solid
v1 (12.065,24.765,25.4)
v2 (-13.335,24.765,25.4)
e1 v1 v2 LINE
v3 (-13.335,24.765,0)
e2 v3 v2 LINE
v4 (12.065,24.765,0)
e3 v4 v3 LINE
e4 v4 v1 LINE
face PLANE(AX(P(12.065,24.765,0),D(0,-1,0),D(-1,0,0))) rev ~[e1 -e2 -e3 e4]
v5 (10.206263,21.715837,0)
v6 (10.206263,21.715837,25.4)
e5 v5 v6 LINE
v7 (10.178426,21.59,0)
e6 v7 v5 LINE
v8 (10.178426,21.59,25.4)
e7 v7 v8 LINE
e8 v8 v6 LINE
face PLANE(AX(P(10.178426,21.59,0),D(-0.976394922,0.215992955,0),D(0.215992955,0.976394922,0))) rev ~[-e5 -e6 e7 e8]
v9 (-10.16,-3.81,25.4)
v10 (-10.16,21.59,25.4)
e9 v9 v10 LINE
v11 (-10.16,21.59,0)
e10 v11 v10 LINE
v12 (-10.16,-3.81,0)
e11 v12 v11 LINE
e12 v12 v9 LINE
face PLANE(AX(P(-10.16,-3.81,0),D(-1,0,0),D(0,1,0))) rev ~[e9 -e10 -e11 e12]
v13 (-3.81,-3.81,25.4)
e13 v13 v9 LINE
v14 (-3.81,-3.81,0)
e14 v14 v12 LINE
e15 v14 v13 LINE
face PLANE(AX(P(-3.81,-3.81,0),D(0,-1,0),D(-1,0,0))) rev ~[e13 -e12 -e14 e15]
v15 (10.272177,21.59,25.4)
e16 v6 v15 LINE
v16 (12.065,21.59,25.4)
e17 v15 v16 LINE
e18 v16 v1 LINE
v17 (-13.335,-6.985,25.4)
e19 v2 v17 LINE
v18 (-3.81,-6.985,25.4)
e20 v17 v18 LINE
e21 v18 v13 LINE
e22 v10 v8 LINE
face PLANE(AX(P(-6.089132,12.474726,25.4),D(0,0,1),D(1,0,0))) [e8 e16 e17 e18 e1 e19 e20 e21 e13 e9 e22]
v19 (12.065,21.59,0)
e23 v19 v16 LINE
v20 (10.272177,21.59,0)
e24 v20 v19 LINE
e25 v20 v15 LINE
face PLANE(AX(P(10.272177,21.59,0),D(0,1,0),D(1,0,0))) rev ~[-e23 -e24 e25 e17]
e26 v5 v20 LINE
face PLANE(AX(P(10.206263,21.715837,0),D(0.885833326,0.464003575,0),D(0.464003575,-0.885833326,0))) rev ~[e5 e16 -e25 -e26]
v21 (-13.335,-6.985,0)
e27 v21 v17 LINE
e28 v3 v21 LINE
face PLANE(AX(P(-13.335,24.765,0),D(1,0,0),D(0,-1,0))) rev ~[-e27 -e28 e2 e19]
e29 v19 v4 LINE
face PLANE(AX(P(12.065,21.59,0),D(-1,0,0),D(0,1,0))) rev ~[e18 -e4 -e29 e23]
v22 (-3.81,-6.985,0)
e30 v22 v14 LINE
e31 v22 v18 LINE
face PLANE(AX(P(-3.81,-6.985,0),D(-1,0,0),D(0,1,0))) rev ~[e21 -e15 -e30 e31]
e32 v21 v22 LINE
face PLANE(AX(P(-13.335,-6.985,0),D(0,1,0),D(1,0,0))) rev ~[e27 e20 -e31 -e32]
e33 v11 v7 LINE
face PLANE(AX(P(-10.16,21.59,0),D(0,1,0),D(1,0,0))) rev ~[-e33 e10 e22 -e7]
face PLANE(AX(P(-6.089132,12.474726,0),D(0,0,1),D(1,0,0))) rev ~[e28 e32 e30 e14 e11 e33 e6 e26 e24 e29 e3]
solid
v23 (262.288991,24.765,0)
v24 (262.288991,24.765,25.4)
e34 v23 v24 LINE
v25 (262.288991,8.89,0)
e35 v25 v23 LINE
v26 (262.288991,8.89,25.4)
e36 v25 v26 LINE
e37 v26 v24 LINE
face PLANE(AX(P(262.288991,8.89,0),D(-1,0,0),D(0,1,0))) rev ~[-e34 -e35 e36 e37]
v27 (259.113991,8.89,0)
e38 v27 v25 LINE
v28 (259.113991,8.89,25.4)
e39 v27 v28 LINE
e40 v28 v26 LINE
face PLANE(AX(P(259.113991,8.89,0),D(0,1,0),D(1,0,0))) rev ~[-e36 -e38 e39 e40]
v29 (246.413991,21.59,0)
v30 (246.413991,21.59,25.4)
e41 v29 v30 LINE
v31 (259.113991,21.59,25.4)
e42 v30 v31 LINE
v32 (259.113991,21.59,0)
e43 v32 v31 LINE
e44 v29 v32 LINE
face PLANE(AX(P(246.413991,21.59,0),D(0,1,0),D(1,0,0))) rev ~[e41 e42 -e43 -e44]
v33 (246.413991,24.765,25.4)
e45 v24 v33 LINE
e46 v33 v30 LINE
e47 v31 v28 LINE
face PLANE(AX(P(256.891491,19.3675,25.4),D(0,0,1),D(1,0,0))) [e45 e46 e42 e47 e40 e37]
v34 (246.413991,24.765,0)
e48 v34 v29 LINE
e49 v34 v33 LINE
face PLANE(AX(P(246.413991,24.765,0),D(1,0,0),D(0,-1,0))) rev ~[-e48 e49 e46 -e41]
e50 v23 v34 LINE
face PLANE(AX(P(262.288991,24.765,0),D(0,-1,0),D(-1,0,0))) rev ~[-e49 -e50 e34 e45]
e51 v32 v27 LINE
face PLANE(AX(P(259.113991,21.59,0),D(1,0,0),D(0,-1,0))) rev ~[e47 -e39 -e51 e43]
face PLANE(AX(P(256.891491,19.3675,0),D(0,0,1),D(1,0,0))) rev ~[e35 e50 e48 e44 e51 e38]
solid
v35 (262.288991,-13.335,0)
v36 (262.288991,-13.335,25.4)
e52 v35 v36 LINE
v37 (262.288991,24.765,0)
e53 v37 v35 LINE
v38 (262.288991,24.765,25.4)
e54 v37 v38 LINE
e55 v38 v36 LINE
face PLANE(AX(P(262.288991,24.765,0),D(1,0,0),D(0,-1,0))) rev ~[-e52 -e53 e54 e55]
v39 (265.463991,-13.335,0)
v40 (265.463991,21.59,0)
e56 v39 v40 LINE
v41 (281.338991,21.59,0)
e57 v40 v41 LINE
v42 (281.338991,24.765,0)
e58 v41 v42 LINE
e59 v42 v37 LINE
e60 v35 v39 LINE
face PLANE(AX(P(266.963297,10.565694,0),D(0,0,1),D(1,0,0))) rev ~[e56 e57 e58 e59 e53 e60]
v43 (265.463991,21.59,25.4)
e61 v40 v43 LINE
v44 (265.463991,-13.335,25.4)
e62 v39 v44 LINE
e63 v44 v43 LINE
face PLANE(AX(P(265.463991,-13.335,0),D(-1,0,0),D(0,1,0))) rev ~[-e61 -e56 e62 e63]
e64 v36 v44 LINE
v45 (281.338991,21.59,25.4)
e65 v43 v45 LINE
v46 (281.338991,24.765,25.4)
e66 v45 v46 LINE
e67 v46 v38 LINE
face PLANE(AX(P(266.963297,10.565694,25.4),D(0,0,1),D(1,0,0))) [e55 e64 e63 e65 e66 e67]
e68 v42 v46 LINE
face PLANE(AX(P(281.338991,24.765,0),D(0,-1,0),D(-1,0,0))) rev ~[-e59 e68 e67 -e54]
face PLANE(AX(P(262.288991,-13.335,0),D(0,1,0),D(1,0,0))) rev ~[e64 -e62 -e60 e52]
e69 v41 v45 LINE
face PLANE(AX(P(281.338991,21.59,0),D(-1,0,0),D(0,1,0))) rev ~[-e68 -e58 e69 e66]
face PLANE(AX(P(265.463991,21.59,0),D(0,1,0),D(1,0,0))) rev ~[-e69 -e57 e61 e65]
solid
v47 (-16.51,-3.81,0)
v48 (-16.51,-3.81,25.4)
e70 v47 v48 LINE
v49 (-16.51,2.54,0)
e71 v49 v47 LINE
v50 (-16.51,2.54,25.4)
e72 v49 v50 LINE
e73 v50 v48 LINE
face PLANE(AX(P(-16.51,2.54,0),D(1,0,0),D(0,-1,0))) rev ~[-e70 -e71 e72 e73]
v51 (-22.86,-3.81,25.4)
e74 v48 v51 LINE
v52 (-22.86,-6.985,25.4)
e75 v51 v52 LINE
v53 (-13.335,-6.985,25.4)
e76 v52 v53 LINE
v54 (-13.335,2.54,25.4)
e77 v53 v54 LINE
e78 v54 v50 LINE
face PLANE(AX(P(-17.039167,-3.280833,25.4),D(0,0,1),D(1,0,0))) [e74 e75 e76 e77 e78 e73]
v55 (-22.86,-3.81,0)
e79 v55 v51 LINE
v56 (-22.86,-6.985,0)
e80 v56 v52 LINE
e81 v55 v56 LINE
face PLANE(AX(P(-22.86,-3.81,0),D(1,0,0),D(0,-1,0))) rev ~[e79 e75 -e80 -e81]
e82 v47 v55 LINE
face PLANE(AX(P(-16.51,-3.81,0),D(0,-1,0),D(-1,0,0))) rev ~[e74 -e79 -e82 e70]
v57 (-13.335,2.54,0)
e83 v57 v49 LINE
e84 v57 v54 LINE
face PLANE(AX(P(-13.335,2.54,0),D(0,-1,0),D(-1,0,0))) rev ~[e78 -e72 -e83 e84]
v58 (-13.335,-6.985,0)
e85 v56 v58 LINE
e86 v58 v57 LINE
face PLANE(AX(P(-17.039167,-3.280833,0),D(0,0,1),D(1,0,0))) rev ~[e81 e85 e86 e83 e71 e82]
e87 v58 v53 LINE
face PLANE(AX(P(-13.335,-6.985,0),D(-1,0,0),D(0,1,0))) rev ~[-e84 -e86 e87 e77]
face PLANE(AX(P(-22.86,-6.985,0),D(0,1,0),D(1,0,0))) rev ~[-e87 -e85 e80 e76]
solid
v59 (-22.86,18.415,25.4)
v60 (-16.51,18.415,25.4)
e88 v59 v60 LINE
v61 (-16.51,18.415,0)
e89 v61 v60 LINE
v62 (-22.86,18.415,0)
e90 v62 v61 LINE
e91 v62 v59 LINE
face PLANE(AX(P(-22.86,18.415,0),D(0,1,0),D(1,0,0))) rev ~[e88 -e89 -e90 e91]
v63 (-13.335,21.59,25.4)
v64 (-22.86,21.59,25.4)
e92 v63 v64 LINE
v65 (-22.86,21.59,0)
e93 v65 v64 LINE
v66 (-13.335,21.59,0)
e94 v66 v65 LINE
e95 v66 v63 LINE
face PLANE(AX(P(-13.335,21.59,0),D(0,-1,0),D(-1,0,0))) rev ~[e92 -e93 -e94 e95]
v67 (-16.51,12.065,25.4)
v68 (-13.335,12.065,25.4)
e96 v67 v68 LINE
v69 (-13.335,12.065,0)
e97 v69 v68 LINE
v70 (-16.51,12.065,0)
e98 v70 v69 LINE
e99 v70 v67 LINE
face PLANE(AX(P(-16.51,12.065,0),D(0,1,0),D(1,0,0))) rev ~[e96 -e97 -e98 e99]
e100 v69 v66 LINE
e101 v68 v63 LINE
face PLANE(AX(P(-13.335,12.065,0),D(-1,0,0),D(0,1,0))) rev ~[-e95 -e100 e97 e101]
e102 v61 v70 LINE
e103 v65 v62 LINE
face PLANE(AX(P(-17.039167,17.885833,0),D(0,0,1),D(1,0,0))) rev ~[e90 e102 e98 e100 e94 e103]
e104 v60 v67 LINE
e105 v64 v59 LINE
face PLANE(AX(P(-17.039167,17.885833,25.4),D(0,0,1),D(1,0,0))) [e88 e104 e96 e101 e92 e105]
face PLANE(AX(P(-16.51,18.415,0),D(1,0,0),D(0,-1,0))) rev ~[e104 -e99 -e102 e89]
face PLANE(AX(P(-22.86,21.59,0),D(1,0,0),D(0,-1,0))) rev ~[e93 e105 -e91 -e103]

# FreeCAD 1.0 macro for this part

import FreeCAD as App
import Part
import Sketcher

V = App.Vector
Q = App.Units.Quantity

doc = App.newDocument("Part")
params = doc.addObject("Spreadsheet::Sheet", "Params")
for row, (alias, value) in enumerate([
    ("sketch1_width", "1 in"),
    ("sketch1_width2", "0.25 in"),
    ("sketch1_height", "1.25 in"),
    ("sketch1_width3", "0.375 in"),
    ("pad1_length", "1 in"),
    ("sketch2_width", "0.25 in"),
    ("sketch2_width2", "0.375 in"),
    ("pad2_length", "1 in"),
    ("sketch3_height", "1.5 in"),
    ("sketch3_width", "0.75 in"),
    ("sketch3_width2", "0.125 in"),
    ("pad3_length", "1 in"),
    ("sketch4_width", "0.5 in"),
    ("sketch4_width2", "0.125 in"),
    ("pad4_length", "1 in"),
], start=1):
    params.set(f"A{row}", alias)
    params.set(f"B{row}", "=" + value)
    params.setAlias(f"B{row}", alias)

body = doc.addObject("PartDesign::Body", "Body")

sketch1 = body.newObject("Sketcher::SketchObject", "Sketch")
sketch1.AttachmentSupport = (doc.getObject("XY_Plane"), [""])
sketch1.MapMode = "FlatFace"
sketch1.addGeometry([
    Part.LineSegment(V(-10.16, 21.59, 0), V(10.18, 21.59, 0)),
    Part.LineSegment(V(10.18, 21.59, 0), V(10.21, 21.72, 0)),
    Part.LineSegment(V(10.21, 21.72, 0), V(10.27, 21.59, 0)),
    Part.LineSegment(V(10.27, 21.59, 0), V(12.06, 21.59, 0)),
    Part.LineSegment(V(12.06, 21.59, 0), V(12.06, 24.77, 0)),
    Part.LineSegment(V(12.06, 24.77, 0), V(-13.34, 24.77, 0)),
    Part.LineSegment(V(-13.34, 24.77, 0), V(-13.34, -6.99, 0)),
    Part.LineSegment(V(-13.34, -6.99, 0), V(-3.81, -6.99, 0)),
    Part.LineSegment(V(-3.81, -6.99, 0), V(-3.81, -3.81, 0)),
    Part.LineSegment(V(-3.81, -3.81, 0), V(-10.16, -3.81, 0)),
    Part.LineSegment(V(-10.16, -3.81, 0), V(-10.16, 21.59, 0)),
], False)
sketch1.addConstraint([
    Sketcher.Constraint("Coincident", 0, 2, 1, 1),
    Sketcher.Constraint("Coincident", 1, 2, 2, 1),
    Sketcher.Constraint("Coincident", 2, 2, 3, 1),
    Sketcher.Constraint("Coincident", 3, 2, 4, 1),
    Sketcher.Constraint("Coincident", 4, 2, 5, 1),
    Sketcher.Constraint("Coincident", 5, 2, 6, 1),
    Sketcher.Constraint("Coincident", 6, 2, 7, 1),
    Sketcher.Constraint("Coincident", 7, 2, 8, 1),
    Sketcher.Constraint("Coincident", 8, 2, 9, 1),
    Sketcher.Constraint("Coincident", 9, 2, 10, 1),
    Sketcher.Constraint("Coincident", 10, 2, 0, 1),
    Sketcher.Constraint("Horizontal", 0),
    Sketcher.Constraint("Horizontal", 3),
    Sketcher.Constraint("Vertical", 4),
    Sketcher.Constraint("Horizontal", 5),
    Sketcher.Constraint("Vertical", 6),
    Sketcher.Constraint("Horizontal", 7),
    Sketcher.Constraint("Vertical", 8),
    Sketcher.Constraint("Horizontal", 9),
    Sketcher.Constraint("Vertical", 10),
    Sketcher.Constraint("Horizontal", 0, 2, 2, 2),
    Sketcher.Constraint("Equal", 4, 8),
    Sketcher.Constraint("Equal", 5, 10),
    Sketcher.Constraint("DistanceX", 5, 2, 5, 1, Q("1 in")),
    Sketcher.Constraint("DistanceX", 9, 2, 9, 1, Q("0.25 in")),
    Sketcher.Constraint("DistanceY", 6, 2, 6, 1, Q("1.25 in")),
    Sketcher.Constraint("DistanceX", 9, 2, -1, 1, Q("0.4 in")),
    Sketcher.Constraint("DistanceX", 7, 1, 7, 2, Q("0.375 in")),
    Sketcher.Constraint("DistanceY", -1, 1, 0, 2, Q("0.85 in")),
    Sketcher.Constraint("Distance", 1, 0.128879),
    Sketcher.Constraint("DistanceX", 0, 1, 0, 2, 20.338426),
    Sketcher.Constraint("DistanceX", 3, 1, 3, 2, 1.792823),
    Sketcher.Constraint("Distance", 2, 0.142055),
])
sketch1.setExpression("Constraints[23]", "Params.sketch1_width")
sketch1.setExpression("Constraints[24]", "Params.sketch1_width2")
sketch1.setExpression("Constraints[25]", "Params.sketch1_height")
sketch1.setExpression("Constraints[27]", "Params.sketch1_width3")
pad1 = body.newObject("PartDesign::Pad", "Pad")
pad1.Profile = sketch1
pad1.setExpression("Length", "Params.pad1_length")
body2 = doc.addObject("PartDesign::Body", "Body001")
body2.AllowCompound = True

sketch2 = body2.newObject("Sketcher::SketchObject", "Sketch001")
sketch2.AttachmentSupport = (doc.getObject("XY_Plane001"), [""])
sketch2.MapMode = "FlatFace"
sketch2.addGeometry([
    Part.LineSegment(V(-13.3, 21.6, 0), V(-22.9, 21.6, 0)),
    Part.LineSegment(V(-22.9, 21.6, 0), V(-22.9, 18.4, 0)),
    Part.LineSegment(V(-22.9, 18.4, 0), V(-16.5, 18.4, 0)),
    Part.LineSegment(V(-16.5, 18.4, 0), V(-16.5, 12.1, 0)),
    Part.LineSegment(V(-16.5, 12.1, 0), V(-13.3, 12.1, 0)),
    Part.LineSegment(V(-13.3, 12.1, 0), V(-13.3, 21.6, 0)),
    Part.LineSegment(V(-22.9, -7, 0), V(-13.3, -7, 0)),
    Part.LineSegment(V(-13.3, -7, 0), V(-13.3, 2.5, 0)),
    Part.LineSegment(V(-13.3, 2.5, 0), V(-16.5, 2.5, 0)),
    Part.LineSegment(V(-16.5, 2.5, 0), V(-16.5, -3.8, 0)),
    Part.LineSegment(V(-16.5, -3.8, 0), V(-22.9, -3.8, 0)),
    Part.LineSegment(V(-22.9, -3.8, 0), V(-22.9, -7, 0)),
], False)
sketch2.addConstraint([
    Sketcher.Constraint("Coincident", 0, 2, 1, 1),
    Sketcher.Constraint("Coincident", 1, 2, 2, 1),
    Sketcher.Constraint("Coincident", 2, 2, 3, 1),
    Sketcher.Constraint("Coincident", 3, 2, 4, 1),
    Sketcher.Constraint("Coincident", 4, 2, 5, 1),
    Sketcher.Constraint("Coincident", 5, 2, 0, 1),
    Sketcher.Constraint("Coincident", 6, 2, 7, 1),
    Sketcher.Constraint("Coincident", 7, 2, 8, 1),
    Sketcher.Constraint("Coincident", 8, 2, 9, 1),
    Sketcher.Constraint("Coincident", 9, 2, 10, 1),
    Sketcher.Constraint("Coincident", 10, 2, 11, 1),
    Sketcher.Constraint("Coincident", 11, 2, 6, 1),
    Sketcher.Constraint("Horizontal", 0),
    Sketcher.Constraint("Vertical", 1),
    Sketcher.Constraint("Horizontal", 2),
    Sketcher.Constraint("Vertical", 3),
    Sketcher.Constraint("Horizontal", 4),
    Sketcher.Constraint("Vertical", 5),
    Sketcher.Constraint("Horizontal", 6),
    Sketcher.Constraint("Vertical", 7),
    Sketcher.Constraint("Horizontal", 8),
    Sketcher.Constraint("Vertical", 9),
    Sketcher.Constraint("Horizontal", 10),
    Sketcher.Constraint("Vertical", 11),
    Sketcher.Constraint("Vertical", 5, 2, 6, 2),
    Sketcher.Constraint("Vertical", 3, 2, 8, 2),
    Sketcher.Constraint("Vertical", 1, 2, 10, 2),
    Sketcher.Constraint("Equal", 8, 1),
    Sketcher.Constraint("Equal", 10, 3),
    Sketcher.Constraint("Equal", 5, 7),
    Sketcher.Constraint("Equal", 3, 9),
    Sketcher.Constraint("DistanceY", 6, 2, 2, 2, Q("1 in")),
    Sketcher.Constraint("DistanceX", 2, 1, 2, 2, Q("0.25 in")),
    Sketcher.Constraint("DistanceX", 0, 2, -1, 1, Q("0.9 in")),
    Sketcher.Constraint("DistanceY", -1, 1, 7, 2, Q("0.1 in")),
    Sketcher.Constraint("DistanceX", 0, 2, 0, 1, Q("0.375 in")),
])
sketch2.setExpression("Constraints[32]", "Params.sketch2_width")
sketch2.setExpression("Constraints[35]", "Params.sketch2_width2")
pad2 = body2.newObject("PartDesign::Pad", "Pad001")
pad2.Profile = sketch2
pad2.setExpression("Length", "Params.pad2_length")
body3 = doc.addObject("PartDesign::Body", "Body002")

sketch3 = body3.newObject("Sketcher::SketchObject", "Sketch002")
sketch3.AttachmentSupport = (doc.getObject("XY_Plane002"), [""])
sketch3.MapMode = "FlatFace"
sketch3.addGeometry([
    Part.LineSegment(V(281.3, 24.8, 0), V(262.3, 24.8, 0)),
    Part.LineSegment(V(262.3, 24.8, 0), V(262.3, -13.3, 0)),
    Part.LineSegment(V(262.3, -13.3, 0), V(265.5, -13.3, 0)),
    Part.LineSegment(V(265.5, -13.3, 0), V(265.5, 21.6, 0)),
    Part.LineSegment(V(265.5, 21.6, 0), V(281.3, 21.6, 0)),
    Part.LineSegment(V(281.3, 21.6, 0), V(281.3, 24.8, 0)),
], False)
sketch3.addConstraint([
    Sketcher.Constraint("Coincident", 0, 2, 1, 1),
    Sketcher.Constraint("Coincident", 1, 2, 2, 1),
    Sketcher.Constraint("Coincident", 2, 2, 3, 1),
    Sketcher.Constraint("Coincident", 3, 2, 4, 1),
    Sketcher.Constraint("Coincident", 4, 2, 5, 1),
    Sketcher.Constraint("Coincident", 5, 2, 0, 1),
    Sketcher.Constraint("Horizontal", 0),
    Sketcher.Constraint("Vertical", 1),
    Sketcher.Constraint("Horizontal", 2),
    Sketcher.Constraint("Vertical", 3),
    Sketcher.Constraint("Horizontal", 4),
    Sketcher.Constraint("Vertical", 5),
    Sketcher.Constraint("Equal", 2, 5),
    Sketcher.Constraint("DistanceY", 1, 2, 1, 1, Q("1.5 in")),
    Sketcher.Constraint("DistanceX", 0, 2, 0, 1, Q("0.75 in")),
    Sketcher.Constraint("DistanceX", 2, 1, 2, 2, Q("0.125 in")),
    Sketcher.Constraint("DistanceY", -1, 1, 3, 2, Q("0.85 in")),
    Sketcher.Constraint("DistanceX", -1, 1, 0, 2, 262.288991),
])
sketch3.setExpression("Constraints[13]", "Params.sketch3_height")
sketch3.setExpression("Constraints[14]", "Params.sketch3_width")
sketch3.setExpression("Constraints[15]", "Params.sketch3_width2")
pad3 = body3.newObject("PartDesign::Pad", "Pad002")
pad3.Profile = sketch3
pad3.setExpression("Length", "Params.pad3_length")
body4 = doc.addObject("PartDesign::Body", "Body003")

sketch4 = body4.newObject("Sketcher::SketchObject", "Sketch003")
sketch4.AttachmentSupport = (doc.getObject("XY_Plane003"), [""])
sketch4.MapMode = "FlatFace"
sketch4.addGeometry([
    Part.LineSegment(V(246.4, 21.6, 0), V(259.1, 21.6, 0)),
    Part.LineSegment(V(259.1, 21.6, 0), V(259.1, 8.9, 0)),
    Part.LineSegment(V(259.1, 8.9, 0), V(262.3, 8.9, 0)),
    Part.LineSegment(V(262.3, 8.9, 0), V(262.3, 24.8, 0)),
    Part.LineSegment(V(262.3, 24.8, 0), V(246.4, 24.8, 0)),
    Part.LineSegment(V(246.4, 24.8, 0), V(246.4, 21.6, 0)),
], False)
sketch4.addConstraint([
    Sketcher.Constraint("Coincident", 0, 2, 1, 1),
    Sketcher.Constraint("Coincident", 1, 2, 2, 1),
    Sketcher.Constraint("Coincident", 2, 2, 3, 1),
    Sketcher.Constraint("Coincident", 3, 2, 4, 1),
    Sketcher.Constraint("Coincident", 4, 2, 5, 1),
    Sketcher.Constraint("Coincident", 5, 2, 0, 1),
    Sketcher.Constraint("Horizontal", 0),
    Sketcher.Constraint("Vertical", 1),
    Sketcher.Constraint("Horizontal", 2),
    Sketcher.Constraint("Vertical", 3),
    Sketcher.Constraint("Horizontal", 4),
    Sketcher.Constraint("Vertical", 5),
    Sketcher.Constraint("Equal", 0, 1),
    Sketcher.Constraint("Equal", 4, 3),
    Sketcher.Constraint("DistanceX", 0, 1, 0, 2, Q("0.5 in")),
    Sketcher.Constraint("DistanceX", 2, 1, 2, 2, Q("0.125 in")),
    Sketcher.Constraint("DistanceY", -1, 1, 0, 2, Q("0.85 in")),
    Sketcher.Constraint("DistanceX", -1, 1, 0, 2, 259.113991),
])
sketch4.setExpression("Constraints[14]", "Params.sketch4_width")
sketch4.setExpression("Constraints[15]", "Params.sketch4_width2")
pad4 = body4.newObject("PartDesign::Pad", "Pad003")
pad4.Profile = sketch4
pad4.setExpression("Length", "Params.pad4_length")

doc.recompute()
